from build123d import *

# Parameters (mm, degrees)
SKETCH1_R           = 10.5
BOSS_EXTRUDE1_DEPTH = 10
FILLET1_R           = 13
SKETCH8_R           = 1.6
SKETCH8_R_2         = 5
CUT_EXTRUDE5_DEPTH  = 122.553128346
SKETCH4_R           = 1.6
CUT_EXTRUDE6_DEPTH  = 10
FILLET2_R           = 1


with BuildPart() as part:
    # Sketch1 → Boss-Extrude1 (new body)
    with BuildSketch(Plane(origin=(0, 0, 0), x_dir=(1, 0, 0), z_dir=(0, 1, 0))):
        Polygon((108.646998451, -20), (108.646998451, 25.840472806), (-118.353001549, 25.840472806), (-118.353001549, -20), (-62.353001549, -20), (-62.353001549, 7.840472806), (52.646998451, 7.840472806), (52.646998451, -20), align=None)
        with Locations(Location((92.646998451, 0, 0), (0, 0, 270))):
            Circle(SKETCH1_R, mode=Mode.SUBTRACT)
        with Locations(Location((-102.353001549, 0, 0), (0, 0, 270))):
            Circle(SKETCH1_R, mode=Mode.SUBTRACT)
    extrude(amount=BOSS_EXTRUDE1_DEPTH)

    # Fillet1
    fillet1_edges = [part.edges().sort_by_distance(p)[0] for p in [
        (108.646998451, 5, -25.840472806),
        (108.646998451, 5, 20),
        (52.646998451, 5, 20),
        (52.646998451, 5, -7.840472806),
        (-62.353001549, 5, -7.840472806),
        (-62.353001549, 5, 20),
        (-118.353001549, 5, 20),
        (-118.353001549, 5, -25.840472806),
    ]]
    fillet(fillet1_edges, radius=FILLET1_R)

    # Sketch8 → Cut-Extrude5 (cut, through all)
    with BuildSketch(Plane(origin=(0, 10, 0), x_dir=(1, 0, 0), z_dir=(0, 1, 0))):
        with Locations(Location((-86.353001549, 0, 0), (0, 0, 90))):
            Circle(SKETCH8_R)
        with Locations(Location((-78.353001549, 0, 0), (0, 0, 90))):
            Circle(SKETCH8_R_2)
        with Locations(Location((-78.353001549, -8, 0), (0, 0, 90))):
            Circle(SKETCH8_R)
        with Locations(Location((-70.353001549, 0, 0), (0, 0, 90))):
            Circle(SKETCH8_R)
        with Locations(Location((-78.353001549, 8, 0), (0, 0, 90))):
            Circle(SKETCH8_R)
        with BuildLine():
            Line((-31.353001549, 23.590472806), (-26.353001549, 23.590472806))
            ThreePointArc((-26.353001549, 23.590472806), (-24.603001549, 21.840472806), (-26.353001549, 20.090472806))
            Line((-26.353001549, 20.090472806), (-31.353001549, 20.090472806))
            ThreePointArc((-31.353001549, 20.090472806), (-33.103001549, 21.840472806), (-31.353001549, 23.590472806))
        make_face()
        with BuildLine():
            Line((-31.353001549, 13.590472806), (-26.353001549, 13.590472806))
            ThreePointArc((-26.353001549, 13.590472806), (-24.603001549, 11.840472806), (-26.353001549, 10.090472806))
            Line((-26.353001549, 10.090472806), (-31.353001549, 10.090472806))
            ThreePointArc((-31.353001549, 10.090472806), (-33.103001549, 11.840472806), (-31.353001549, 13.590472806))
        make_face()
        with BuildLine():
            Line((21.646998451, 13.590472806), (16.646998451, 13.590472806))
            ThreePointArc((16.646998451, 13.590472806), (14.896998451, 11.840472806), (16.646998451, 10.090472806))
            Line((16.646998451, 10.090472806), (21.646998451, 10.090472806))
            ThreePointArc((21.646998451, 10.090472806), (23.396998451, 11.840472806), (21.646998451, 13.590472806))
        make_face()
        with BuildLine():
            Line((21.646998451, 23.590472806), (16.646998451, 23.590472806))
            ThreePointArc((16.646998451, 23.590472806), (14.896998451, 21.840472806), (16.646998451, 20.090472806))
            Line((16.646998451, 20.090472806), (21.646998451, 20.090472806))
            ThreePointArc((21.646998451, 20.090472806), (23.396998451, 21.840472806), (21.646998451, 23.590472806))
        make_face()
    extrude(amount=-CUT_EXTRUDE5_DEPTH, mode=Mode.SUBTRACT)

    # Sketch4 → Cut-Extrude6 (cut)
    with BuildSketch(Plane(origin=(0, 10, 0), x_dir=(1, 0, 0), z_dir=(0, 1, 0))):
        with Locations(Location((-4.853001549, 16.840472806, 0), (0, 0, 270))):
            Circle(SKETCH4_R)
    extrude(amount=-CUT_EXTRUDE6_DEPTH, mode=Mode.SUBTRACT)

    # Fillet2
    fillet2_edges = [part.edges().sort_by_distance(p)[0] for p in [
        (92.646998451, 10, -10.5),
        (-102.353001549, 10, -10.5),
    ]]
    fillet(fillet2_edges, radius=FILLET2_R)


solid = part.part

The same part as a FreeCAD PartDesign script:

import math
import FreeCAD as App
import Part
import Sketcher


def edges_at(feature, points):
    """Names of the edges that pass closest to the given points."""
    edges = feature.Shape.Edges
    near = lambda p: min(range(len(edges)), key=lambda i: edges[i].distToShape(Part.Vertex(*p))[0])
    return sorted({f"Edge{near(p) + 1}" for p in points})

doc = App.newDocument("Part")
body = doc.addObject("PartDesign::Body", "Body")

sketch1 = doc.addObject("Sketcher::SketchObject", "Sketch")
body.addObject(sketch1)
sketch1.AttachmentSupport = (doc.XZ_Plane, [""])
sketch1.MapMode = "FlatFace"
sketch1.addGeometry([
    Part.LineSegment(App.Vector(109, 20, 0), App.Vector(109, -26, 0)),
    Part.LineSegment(App.Vector(109, -26, 0), App.Vector(-118, -26, 0)),
    Part.LineSegment(App.Vector(-118, -26, 0), App.Vector(-118, 20, 0)),
    Part.LineSegment(App.Vector(-118, 20, 0), App.Vector(-62, 20, 0)),
    Part.LineSegment(App.Vector(-62, 20, 0), App.Vector(-62, -8, 0)),
    Part.LineSegment(App.Vector(-62, -8, 0), App.Vector(53, -8, 0)),
    Part.LineSegment(App.Vector(53, -8, 0), App.Vector(53, 20, 0)),
    Part.LineSegment(App.Vector(53, 20, 0), App.Vector(109, 20, 0)),
    Part.Circle(App.Vector(-102, 0, 0), App.Vector(0, 0, 1), 10),
    Part.Circle(App.Vector(93, 0, 0), App.Vector(0, 0, 1), 10),
], False)
sketch1.addConstraint([
    Sketcher.Constraint("Coincident", 0, 2, 1, 1),
    Sketcher.Constraint("Coincident", 1, 2, 2, 1),
    Sketcher.Constraint("Coincident", 2, 2, 3, 1),
    Sketcher.Constraint("Coincident", 3, 2, 4, 1),
    Sketcher.Constraint("Coincident", 4, 2, 5, 1),
    Sketcher.Constraint("Coincident", 5, 2, 6, 1),
    Sketcher.Constraint("Coincident", 6, 2, 7, 1),
    Sketcher.Constraint("Coincident", 7, 2, 0, 1),
    Sketcher.Constraint("Vertical", 0),
    Sketcher.Constraint("Horizontal", 1),
    Sketcher.Constraint("Vertical", 2),
    Sketcher.Constraint("Horizontal", 3),
    Sketcher.Constraint("Vertical", 4),
    Sketcher.Constraint("Horizontal", 5),
    Sketcher.Constraint("Vertical", 6),
    Sketcher.Constraint("Horizontal", 7),
    Sketcher.Constraint("Equal", 8, 9),
    Sketcher.Constraint("PointOnObject", 8, 3, -1),
    Sketcher.Constraint("PointOnObject", 9, 3, -1),
    Sketcher.Constraint("Horizontal", 3, 2, 6, 2),
    Sketcher.Constraint("Equal", 3, 7),
    Sketcher.Constraint("Diameter", 8, 21.0),
    Sketcher.Constraint("DistanceX", 1, 2, 1, 1, 227.0),
    Sketcher.Constraint("DistanceX", 3, 1, 3, 2, 56.0),
    Sketcher.Constraint("DistanceY", -1, 1, 2, 2, 20.0),
    Sketcher.Constraint("DistanceX", 8, 3, 9, 3, 195.0),
    Sketcher.Constraint("DistanceX", 9, 3, 0, 2, 16.0),
    Sketcher.Constraint("DistanceY", 1, 2, 4, 2, 18.0),
    Sketcher.Constraint("DistanceX", 8, 3, -1, 1, 102.353002),
    Sketcher.Constraint("DistanceY", 0, 2, 0, 1, 45.840473),
])
pad1 = doc.addObject("PartDesign::Pad", "Pad")
body.addObject(pad1)
pad1.Profile = sketch1
pad1.Length = 10
pad1.Reversed = True
doc.recompute()

fillet = doc.addObject("PartDesign::Fillet", "Fillet")
body.addObject(fillet)
fillet.Base = (pad1, edges_at(pad1, [
    (108.647, 5, -25.84),
    (108.647, 5, 20),
    (52.647, 5, 20),
    (52.647, 5, -7.84),
    (-62.353, 5, -7.84),
    (-62.353, 5, 20),
    (-118.353, 5, 20),
    (-118.353, 5, -25.84),
]))
fillet.Radius = 13

sketch2 = doc.addObject("Sketcher::SketchObject", "Sketch001")
body.addObject(sketch2)
sketch2.AttachmentSupport = (doc.XZ_Plane, [""])
sketch2.MapMode = "FlatFace"
sketch2.AttachmentOffset = App.Placement(App.Vector(0, 0, -10), App.Rotation())
sketch2.addGeometry([
    Part.Circle(App.Vector(-86.4, 0, 0), App.Vector(0, 0, 1), 1.6),
    Part.Circle(App.Vector(-78.4, 0, 0), App.Vector(0, 0, 1), 5),
    Part.Circle(App.Vector(-78.4, 8, 0), App.Vector(0, 0, 1), 1.6),
    Part.Circle(App.Vector(-70.4, 0, 0), App.Vector(0, 0, 1), 1.6),
    Part.Circle(App.Vector(-78.4, -8, 0), App.Vector(0, 0, 1), 1.6),
    Part.LineSegment(App.Vector(-26.4, -23.6, 0), App.Vector(-31.4, -23.6, 0)),
    Part.ArcOfCircle(Part.Circle(App.Vector(-31.4, -21.8, 0), App.Vector(0, 0, 1), 1.8), math.radians(90), math.radians(270)),
    Part.LineSegment(App.Vector(-31.4, -20.1, 0), App.Vector(-26.4, -20.1, 0)),
    Part.ArcOfCircle(Part.Circle(App.Vector(-26.4, -21.8, 0), App.Vector(0, 0, 1), 1.8), math.radians(-90), math.radians(90)),
    Part.LineSegment(App.Vector(-26.4, -13.6, 0), App.Vector(-31.4, -13.6, 0)),
    Part.ArcOfCircle(Part.Circle(App.Vector(-31.4, -11.8, 0), App.Vector(0, 0, 1), 1.8), math.radians(90), math.radians(270)),
    Part.LineSegment(App.Vector(-31.4, -10.1, 0), App.Vector(-26.4, -10.1, 0)),
    Part.ArcOfCircle(Part.Circle(App.Vector(-26.4, -11.8, 0), App.Vector(0, 0, 1), 1.8), math.radians(-90), math.radians(90)),
    Part.LineSegment(App.Vector(21.6, -13.6, 0), App.Vector(16.6, -13.6, 0)),
    Part.ArcOfCircle(Part.Circle(App.Vector(16.6, -11.8, 0), App.Vector(0, 0, 1), 1.8), math.radians(90), math.radians(270)),
    Part.LineSegment(App.Vector(16.6, -10.1, 0), App.Vector(21.6, -10.1, 0)),
    Part.ArcOfCircle(Part.Circle(App.Vector(21.6, -11.8, 0), App.Vector(0, 0, 1), 1.8), math.radians(-90), math.radians(90)),
    Part.LineSegment(App.Vector(21.6, -23.6, 0), App.Vector(16.6, -23.6, 0)),
    Part.ArcOfCircle(Part.Circle(App.Vector(16.6, -21.8, 0), App.Vector(0, 0, 1), 1.8), math.radians(90), math.radians(270)),
    Part.LineSegment(App.Vector(16.6, -20.1, 0), App.Vector(21.6, -20.1, 0)),
    Part.ArcOfCircle(Part.Circle(App.Vector(21.6, -21.8, 0), App.Vector(0, 0, 1), 1.8), math.radians(-90), math.radians(90)),
], False)
sketch2.addConstraint([
    Sketcher.Constraint("Tangent", 5, 2, 6, 2),
    Sketcher.Constraint("Tangent", 6, 1, 7, 1),
    Sketcher.Constraint("Tangent", 7, 2, 8, 2),
    Sketcher.Constraint("Tangent", 8, 1, 5, 1),
    Sketcher.Constraint("Tangent", 9, 2, 10, 2),
    Sketcher.Constraint("Tangent", 10, 1, 11, 1),
    Sketcher.Constraint("Tangent", 11, 2, 12, 2),
    Sketcher.Constraint("Tangent", 12, 1, 9, 1),
    Sketcher.Constraint("Tangent", 13, 2, 14, 2),
    Sketcher.Constraint("Tangent", 14, 1, 15, 1),
    Sketcher.Constraint("Tangent", 15, 2, 16, 2),
    Sketcher.Constraint("Tangent", 16, 1, 13, 1),
    Sketcher.Constraint("Tangent", 17, 2, 18, 2),
    Sketcher.Constraint("Tangent", 18, 1, 19, 1),
    Sketcher.Constraint("Tangent", 19, 2, 20, 2),
    Sketcher.Constraint("Tangent", 20, 1, 17, 1),
    Sketcher.Constraint("Horizontal", 5),
    Sketcher.Constraint("Horizontal", 7),
    Sketcher.Constraint("Horizontal", 9),
    Sketcher.Constraint("Horizontal", 11),
    Sketcher.Constraint("Horizontal", 13),
    Sketcher.Constraint("Horizontal", 15),
    Sketcher.Constraint("Horizontal", 17),
    Sketcher.Constraint("Horizontal", 19),
    Sketcher.Constraint("Equal", 0, 2),
    Sketcher.Constraint("Equal", 2, 3),
    Sketcher.Constraint("Equal", 3, 4),
    Sketcher.Constraint("Equal", 8, 10),
    Sketcher.Constraint("Equal", 12, 14),
    Sketcher.Constraint("Equal", 16, 18),
    Sketcher.Constraint("Symmetric", 2, 3, 4, 3, -1),
    Sketcher.Constraint("PointOnObject", 0, 3, -1),
    Sketcher.Constraint("PointOnObject", 1, 3, -1),
    Sketcher.Constraint("PointOnObject", 3, 3, -1),
    Sketcher.Constraint("Horizontal", 12, 3, 14, 3),
    Sketcher.Constraint("Horizontal", 8, 3, 18, 3),
    Sketcher.Constraint("Vertical", 1, 3, 2, 3),
    Sketcher.Constraint("Vertical", 6, 3, 10, 3),
    Sketcher.Constraint("Vertical", 8, 3, 12, 3),
    Sketcher.Constraint("Vertical", 14, 3, 18, 3),
    Sketcher.Constraint("Vertical", 16, 3, 20, 3),
    Sketcher.Constraint("Equal", 11, 13),
    Sketcher.Constraint("Diameter", 1, 10.0),
    Sketcher.Constraint("Diameter", 0, 3.2),
    Sketcher.Constraint("DistanceX", 5, 2, 5, 1, 5.0),
    Sketcher.Constraint("Radius", 6, 1.75),
    Sketcher.Constraint("DistanceY", -1, 1, 2, 3, 8.0),
    Sketcher.Constraint("DistanceX", 0, 3, 1, 3, 8.0),
    Sketcher.Constraint("DistanceX", 1, 3, 3, 3, 8.0),
    Sketcher.Constraint("DistanceX", 3, 3, 6, 3, 39.0),
    Sketcher.Constraint("DistanceY", 6, 3, 10, 3, 10.0),
    Sketcher.Constraint("DistanceX", 12, 3, 14, 3, 43.0),
    Sketcher.Constraint("DistanceX", 0, 3, -1, 1, 86.353002),
    Sketcher.Constraint("DistanceY", 6, 3, -1, 1, 21.840473),
])
pocket1 = doc.addObject("PartDesign::Pocket", "Pocket")
body.addObject(pocket1)
pocket1.Profile = sketch2
pocket1.Type = "ThroughAll"
pocket1.Reversed = True

sketch3 = doc.addObject("Sketcher::SketchObject", "Sketch002")
body.addObject(sketch3)
sketch3.AttachmentSupport = (doc.XZ_Plane, [""])
sketch3.MapMode = "FlatFace"
sketch3.AttachmentOffset = App.Placement(App.Vector(0, 0, -10), App.Rotation())
sketch3.addGeometry(Part.Circle(App.Vector(-4.9, -16.8, 0), App.Vector(0, 0, 1), 1.6), False)
sketch3.addConstraint([
    Sketcher.Constraint("Diameter", 0, 3.2),
    Sketcher.Constraint("DistanceX", 0, 3, -1, 1, 4.853002),
    Sketcher.Constraint("DistanceY", 0, 3, -1, 1, 16.840473),
])
pocket2 = doc.addObject("PartDesign::Pocket", "Pocket001")
body.addObject(pocket2)
pocket2.Profile = sketch3
pocket2.Length = 10
pocket2.Reversed = True
doc.recompute()

fillet2 = doc.addObject("PartDesign::Fillet", "Fillet001")
body.addObject(fillet2)
fillet2.Base = (pocket2, edges_at(pocket2, [(92.647, 10, -10.5), (-102.353, 10, -10.5)]))
fillet2.Radius = 1

doc.recompute()
